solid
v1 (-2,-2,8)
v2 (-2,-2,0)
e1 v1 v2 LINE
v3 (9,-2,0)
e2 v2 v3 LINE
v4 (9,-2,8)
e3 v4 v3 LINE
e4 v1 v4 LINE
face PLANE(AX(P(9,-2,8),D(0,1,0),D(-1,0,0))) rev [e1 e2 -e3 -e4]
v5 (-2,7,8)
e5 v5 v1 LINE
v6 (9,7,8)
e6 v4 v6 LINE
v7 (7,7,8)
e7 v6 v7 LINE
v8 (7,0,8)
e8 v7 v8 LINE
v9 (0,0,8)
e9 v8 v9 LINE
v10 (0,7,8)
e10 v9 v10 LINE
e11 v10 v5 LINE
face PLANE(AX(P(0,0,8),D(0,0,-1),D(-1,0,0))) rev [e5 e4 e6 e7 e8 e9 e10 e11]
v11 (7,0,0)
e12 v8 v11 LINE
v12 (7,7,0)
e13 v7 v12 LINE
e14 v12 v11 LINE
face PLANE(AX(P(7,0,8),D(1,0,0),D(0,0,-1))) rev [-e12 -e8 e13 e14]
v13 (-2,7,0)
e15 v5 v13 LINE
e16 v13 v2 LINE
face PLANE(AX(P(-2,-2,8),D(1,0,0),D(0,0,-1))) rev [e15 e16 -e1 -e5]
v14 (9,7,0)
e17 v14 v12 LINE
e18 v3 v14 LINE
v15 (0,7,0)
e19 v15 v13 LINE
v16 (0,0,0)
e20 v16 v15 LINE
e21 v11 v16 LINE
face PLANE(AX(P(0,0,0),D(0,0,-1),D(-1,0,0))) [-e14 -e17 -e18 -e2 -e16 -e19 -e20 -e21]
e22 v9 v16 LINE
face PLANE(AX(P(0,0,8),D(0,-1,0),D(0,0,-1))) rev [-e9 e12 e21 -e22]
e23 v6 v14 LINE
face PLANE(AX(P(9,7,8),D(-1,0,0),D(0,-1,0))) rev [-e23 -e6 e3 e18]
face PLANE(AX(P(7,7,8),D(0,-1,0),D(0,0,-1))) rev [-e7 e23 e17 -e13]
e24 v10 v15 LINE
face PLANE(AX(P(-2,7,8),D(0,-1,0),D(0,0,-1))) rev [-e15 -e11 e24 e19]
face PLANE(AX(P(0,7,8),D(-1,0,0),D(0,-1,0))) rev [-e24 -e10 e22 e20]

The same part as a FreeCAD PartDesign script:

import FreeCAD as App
import Part
import Sketcher


def add_polygon(sketch, points):
    """Adds a closed chain of lines whose ends are joined by coincident constraints."""
    first, n = sketch.GeometryCount, len(points)
    for a, b in zip(points, points[1:] + points[:1]):
        sketch.addGeometry(Part.LineSegment(App.Vector(*a, 0), App.Vector(*b, 0)), False)
    for i in range(n):
        sketch.addConstraint(Sketcher.Constraint("Coincident", first + i, 2, first + (i + 1) % n, 1))

doc = App.newDocument("Part")
body = doc.addObject("PartDesign::Body", "Body")

sketch1 = doc.addObject("Sketcher::SketchObject", "Sketch")
body.addObject(sketch1)
sketch1.AttachmentSupport = (doc.XY_Plane, [""])
sketch1.MapMode = "FlatFace"
add_polygon(sketch1, [(0, 0), (0, 7), (-2, 7), (-2, -2), (9, -2), (9, 7), (7, 7), (7, 0)])
sketch1.addConstraint([
    Sketcher.Constraint("Vertical", 0),
    Sketcher.Constraint("Horizontal", 1),
    Sketcher.Constraint("Vertical", 2),
    Sketcher.Constraint("Horizontal", 3),
    Sketcher.Constraint("Vertical", 4),
    Sketcher.Constraint("Horizontal", 5),
    Sketcher.Constraint("Vertical", 6),
    Sketcher.Constraint("Horizontal", 7),
    Sketcher.Constraint("Coincident", 7, 2, -1, 1),
    Sketcher.Constraint("Horizontal", 1, 2, 4, 2),
    Sketcher.Constraint("Equal", 1, 5),
    Sketcher.Constraint("Equal", 7, 0),
    Sketcher.Constraint("DistanceX", 1, 2, 1, 1, 2.0),
    Sketcher.Constraint("DistanceX", 3, 1, 3, 2, 11.0),
    Sketcher.Constraint("DistanceY", 2, 2, 2, 1, 9.0),
])
pad1 = doc.addObject("PartDesign::Pad", "Pad")
body.addObject(pad1)
pad1.Profile = sketch1
pad1.Length = 8

doc.recompute()
